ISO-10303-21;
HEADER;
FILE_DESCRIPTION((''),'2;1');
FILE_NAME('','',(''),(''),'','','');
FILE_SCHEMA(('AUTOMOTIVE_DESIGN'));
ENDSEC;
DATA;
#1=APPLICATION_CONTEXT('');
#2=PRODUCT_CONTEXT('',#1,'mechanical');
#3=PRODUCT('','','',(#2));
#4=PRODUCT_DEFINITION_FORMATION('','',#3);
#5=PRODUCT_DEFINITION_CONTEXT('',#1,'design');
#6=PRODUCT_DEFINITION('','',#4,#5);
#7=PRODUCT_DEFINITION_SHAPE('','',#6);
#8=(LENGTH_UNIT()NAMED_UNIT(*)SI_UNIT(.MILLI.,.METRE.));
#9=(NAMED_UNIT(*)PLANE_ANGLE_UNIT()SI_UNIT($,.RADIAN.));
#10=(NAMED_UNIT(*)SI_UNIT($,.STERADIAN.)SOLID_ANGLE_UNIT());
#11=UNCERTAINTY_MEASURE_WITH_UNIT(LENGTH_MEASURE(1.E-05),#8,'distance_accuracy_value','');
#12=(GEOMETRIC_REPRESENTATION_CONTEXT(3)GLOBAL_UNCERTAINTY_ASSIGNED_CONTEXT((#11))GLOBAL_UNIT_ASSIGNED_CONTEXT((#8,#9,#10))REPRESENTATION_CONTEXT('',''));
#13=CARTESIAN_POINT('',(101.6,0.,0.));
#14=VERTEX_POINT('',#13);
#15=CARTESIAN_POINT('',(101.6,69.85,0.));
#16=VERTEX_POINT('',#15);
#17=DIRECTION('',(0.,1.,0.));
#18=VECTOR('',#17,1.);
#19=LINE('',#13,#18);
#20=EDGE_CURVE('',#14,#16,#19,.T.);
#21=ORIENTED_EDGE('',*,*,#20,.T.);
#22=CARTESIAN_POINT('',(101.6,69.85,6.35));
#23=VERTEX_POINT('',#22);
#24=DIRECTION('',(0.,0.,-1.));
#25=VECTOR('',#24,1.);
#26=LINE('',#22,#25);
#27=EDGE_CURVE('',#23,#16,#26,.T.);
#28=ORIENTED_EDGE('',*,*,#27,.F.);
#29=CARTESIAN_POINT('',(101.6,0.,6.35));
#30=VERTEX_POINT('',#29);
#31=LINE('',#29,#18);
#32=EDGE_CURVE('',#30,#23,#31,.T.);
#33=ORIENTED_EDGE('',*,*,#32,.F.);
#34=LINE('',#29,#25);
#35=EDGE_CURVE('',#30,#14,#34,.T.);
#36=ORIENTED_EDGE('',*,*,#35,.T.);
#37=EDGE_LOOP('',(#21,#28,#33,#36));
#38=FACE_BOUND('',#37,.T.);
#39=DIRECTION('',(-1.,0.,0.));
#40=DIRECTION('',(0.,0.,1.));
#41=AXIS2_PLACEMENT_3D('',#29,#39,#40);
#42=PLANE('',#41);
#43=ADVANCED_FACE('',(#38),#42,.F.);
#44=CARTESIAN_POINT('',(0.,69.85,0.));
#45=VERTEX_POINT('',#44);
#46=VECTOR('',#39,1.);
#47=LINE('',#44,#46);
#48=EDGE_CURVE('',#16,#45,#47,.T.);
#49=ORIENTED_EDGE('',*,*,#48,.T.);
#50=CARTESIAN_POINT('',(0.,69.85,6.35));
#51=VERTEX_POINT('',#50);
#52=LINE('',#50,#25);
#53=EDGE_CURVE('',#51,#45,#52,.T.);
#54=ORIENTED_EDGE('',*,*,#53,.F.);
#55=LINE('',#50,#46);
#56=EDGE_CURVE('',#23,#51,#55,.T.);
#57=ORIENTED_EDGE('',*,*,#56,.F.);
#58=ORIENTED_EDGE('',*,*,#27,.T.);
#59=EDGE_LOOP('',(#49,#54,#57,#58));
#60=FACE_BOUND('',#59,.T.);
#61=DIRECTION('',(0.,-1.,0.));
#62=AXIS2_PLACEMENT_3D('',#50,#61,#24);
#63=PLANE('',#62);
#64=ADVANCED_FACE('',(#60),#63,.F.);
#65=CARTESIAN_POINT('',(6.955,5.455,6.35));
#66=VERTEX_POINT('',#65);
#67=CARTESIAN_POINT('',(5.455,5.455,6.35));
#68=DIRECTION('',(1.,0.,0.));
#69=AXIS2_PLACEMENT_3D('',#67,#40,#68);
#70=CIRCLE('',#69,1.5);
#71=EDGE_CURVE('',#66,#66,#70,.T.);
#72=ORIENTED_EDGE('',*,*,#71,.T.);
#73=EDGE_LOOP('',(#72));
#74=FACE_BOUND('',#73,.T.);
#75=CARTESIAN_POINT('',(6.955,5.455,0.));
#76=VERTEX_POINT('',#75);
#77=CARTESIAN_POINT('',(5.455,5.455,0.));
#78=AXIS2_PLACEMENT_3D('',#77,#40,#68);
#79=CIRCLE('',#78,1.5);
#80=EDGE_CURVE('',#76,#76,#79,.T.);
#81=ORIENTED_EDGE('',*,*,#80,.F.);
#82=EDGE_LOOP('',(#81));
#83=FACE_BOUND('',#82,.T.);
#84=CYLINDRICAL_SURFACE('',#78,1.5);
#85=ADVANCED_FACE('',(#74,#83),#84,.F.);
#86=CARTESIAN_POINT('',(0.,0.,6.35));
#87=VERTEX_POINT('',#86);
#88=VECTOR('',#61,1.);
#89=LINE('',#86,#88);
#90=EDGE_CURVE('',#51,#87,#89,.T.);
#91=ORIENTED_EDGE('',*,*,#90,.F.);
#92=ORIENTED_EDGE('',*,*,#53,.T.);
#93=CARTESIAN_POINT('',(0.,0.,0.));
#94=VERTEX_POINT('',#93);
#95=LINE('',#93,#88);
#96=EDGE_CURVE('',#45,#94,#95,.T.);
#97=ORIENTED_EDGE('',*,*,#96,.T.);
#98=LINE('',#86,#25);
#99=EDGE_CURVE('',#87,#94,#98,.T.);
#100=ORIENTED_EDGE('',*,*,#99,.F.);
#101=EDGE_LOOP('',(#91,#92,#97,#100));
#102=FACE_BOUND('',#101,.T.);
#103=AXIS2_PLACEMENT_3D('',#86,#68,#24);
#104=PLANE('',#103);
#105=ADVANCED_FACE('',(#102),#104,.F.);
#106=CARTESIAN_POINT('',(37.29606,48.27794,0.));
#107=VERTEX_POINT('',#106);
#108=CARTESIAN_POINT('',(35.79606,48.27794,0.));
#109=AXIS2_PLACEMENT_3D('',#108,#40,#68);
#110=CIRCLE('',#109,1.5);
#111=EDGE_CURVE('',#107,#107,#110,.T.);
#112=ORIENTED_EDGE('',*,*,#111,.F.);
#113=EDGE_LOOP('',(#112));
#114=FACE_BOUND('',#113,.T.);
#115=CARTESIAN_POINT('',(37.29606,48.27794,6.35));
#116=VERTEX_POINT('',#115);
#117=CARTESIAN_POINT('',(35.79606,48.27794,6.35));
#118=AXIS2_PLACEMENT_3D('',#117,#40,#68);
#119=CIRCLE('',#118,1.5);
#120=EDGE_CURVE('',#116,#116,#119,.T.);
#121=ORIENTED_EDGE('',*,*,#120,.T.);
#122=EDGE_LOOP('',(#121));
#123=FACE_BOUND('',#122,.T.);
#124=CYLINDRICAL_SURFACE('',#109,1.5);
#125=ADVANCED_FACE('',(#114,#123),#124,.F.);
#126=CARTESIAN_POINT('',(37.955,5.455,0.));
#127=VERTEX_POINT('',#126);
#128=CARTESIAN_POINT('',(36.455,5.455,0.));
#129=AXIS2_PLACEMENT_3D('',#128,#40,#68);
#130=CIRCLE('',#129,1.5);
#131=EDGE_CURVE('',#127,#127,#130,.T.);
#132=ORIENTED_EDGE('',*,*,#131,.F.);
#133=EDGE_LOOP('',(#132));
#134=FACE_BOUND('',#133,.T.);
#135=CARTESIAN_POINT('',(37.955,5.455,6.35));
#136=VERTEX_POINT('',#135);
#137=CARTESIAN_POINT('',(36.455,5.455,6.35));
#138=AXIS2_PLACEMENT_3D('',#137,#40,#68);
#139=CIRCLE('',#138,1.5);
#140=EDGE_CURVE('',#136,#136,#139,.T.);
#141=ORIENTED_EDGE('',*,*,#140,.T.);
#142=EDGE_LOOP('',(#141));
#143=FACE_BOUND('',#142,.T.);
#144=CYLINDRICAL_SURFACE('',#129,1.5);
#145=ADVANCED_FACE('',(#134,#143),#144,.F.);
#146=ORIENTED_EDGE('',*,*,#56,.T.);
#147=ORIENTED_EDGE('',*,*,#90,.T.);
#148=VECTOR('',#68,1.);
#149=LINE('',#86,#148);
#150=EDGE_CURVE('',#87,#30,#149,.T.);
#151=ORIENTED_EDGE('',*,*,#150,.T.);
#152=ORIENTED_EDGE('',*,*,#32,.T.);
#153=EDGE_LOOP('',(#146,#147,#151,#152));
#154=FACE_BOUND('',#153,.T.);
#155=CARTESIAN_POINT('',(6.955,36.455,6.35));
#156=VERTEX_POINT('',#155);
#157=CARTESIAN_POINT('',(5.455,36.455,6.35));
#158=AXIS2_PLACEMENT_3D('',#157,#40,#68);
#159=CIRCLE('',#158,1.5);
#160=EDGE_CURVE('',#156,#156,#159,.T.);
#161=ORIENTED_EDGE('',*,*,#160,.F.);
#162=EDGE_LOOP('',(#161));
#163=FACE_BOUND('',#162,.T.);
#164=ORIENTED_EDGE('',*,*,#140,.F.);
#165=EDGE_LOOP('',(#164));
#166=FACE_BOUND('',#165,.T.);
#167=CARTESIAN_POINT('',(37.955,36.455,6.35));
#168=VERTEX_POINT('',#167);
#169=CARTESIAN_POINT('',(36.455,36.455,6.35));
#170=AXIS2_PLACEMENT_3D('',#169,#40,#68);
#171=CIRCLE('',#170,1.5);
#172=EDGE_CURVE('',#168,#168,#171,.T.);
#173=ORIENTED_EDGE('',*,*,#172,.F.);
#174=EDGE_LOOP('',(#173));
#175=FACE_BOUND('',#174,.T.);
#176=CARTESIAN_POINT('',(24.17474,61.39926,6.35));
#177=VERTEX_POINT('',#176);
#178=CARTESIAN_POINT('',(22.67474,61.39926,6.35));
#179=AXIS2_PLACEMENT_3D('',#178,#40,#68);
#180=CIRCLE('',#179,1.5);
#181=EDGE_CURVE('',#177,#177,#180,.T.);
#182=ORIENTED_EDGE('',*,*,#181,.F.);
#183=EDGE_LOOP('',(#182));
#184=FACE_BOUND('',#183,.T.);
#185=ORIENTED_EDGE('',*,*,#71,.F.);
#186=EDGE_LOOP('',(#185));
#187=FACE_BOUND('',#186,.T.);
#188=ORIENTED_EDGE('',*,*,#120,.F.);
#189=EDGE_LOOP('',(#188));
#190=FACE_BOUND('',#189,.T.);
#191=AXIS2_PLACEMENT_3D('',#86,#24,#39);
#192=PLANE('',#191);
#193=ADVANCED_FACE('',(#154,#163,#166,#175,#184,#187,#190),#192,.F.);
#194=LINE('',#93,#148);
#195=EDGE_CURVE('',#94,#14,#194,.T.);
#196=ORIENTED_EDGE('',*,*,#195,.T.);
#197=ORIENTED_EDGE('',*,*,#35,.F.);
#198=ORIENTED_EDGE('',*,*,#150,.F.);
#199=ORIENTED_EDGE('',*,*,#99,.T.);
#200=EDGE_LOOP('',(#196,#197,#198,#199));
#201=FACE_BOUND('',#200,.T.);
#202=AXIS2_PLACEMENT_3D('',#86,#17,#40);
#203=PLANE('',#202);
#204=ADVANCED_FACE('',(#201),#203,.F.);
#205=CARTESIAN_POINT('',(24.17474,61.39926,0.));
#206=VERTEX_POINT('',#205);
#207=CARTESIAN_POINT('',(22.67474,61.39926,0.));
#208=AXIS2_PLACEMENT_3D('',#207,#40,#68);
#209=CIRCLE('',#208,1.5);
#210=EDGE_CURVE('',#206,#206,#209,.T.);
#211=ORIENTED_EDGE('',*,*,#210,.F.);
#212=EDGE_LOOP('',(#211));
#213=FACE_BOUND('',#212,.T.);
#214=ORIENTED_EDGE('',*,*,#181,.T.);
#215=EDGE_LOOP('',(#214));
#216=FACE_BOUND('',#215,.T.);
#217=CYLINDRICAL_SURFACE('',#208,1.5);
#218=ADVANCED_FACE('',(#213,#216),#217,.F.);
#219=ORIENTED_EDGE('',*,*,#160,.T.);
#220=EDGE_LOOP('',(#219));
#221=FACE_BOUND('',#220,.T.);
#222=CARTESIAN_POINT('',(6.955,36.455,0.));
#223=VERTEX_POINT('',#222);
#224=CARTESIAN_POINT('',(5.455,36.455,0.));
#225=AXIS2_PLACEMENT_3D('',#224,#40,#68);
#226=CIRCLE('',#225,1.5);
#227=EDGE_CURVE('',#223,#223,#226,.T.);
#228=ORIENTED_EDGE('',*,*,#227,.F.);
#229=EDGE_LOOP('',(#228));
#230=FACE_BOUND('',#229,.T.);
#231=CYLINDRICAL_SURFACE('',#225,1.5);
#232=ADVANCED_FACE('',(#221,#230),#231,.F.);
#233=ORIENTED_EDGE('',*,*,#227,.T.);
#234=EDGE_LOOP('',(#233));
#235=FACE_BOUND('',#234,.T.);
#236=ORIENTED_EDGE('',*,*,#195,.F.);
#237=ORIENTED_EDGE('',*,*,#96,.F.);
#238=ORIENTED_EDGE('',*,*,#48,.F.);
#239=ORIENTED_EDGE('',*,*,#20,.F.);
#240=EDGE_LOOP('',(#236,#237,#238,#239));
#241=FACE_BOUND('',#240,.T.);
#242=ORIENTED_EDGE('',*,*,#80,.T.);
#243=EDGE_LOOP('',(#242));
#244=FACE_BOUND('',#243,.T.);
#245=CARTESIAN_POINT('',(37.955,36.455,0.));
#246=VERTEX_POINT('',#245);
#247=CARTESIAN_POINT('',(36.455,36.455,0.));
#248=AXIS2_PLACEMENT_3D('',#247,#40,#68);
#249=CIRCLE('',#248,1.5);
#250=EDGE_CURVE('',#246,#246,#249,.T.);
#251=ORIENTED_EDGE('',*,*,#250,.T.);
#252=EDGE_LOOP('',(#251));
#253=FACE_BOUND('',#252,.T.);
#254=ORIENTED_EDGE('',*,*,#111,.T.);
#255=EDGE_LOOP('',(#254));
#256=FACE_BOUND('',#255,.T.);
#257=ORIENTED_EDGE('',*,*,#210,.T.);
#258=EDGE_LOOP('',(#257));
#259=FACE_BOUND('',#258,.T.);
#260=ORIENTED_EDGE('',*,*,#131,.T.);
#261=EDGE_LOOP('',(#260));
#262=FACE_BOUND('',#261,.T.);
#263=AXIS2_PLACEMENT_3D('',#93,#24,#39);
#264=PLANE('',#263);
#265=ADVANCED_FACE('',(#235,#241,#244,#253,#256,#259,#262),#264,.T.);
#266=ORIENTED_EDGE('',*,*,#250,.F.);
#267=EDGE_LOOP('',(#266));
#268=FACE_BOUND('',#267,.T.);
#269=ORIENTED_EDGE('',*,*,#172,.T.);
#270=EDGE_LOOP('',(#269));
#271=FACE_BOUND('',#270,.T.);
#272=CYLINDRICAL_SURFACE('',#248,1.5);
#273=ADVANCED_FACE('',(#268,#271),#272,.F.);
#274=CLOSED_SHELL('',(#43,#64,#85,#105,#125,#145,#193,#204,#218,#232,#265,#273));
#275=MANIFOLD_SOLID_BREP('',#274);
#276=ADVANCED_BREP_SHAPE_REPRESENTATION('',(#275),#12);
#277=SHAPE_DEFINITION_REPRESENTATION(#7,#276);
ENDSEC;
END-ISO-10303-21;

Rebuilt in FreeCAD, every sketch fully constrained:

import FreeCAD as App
import Part
import Sketcher
from FreeCAD import Vector
Q = App.Units.Quantity


def add_polygon(sketch, points):
    """Adds a closed chain of lines whose ends are joined by coincident constraints."""
    first, n = sketch.GeometryCount, len(points)
    for a, b in zip(points, points[1:] + points[:1]):
        sketch.addGeometry(Part.LineSegment(App.Vector(*a, 0), App.Vector(*b, 0)), False)
    for i in range(n):
        sketch.addConstraint(Sketcher.Constraint("Coincident", first + i, 2, first + (i + 1) % n, 1))

doc = App.newDocument("Part")
body = doc.addObject("PartDesign::Body", "Body")

# Sketch on XY plane
sketch1 = body.newObject("Sketcher::SketchObject", "Sketch")
sketch1.AttachmentSupport = (doc.getObject("XY_Plane"), [""])
sketch1.MapMode = "FlatFace"
add_polygon(sketch1, [(0, 70), (0, 0), (102, 0), (102, 70)])  # lines 0-3
sketch1.addConstraint([
    Sketcher.Constraint("Vertical", 0),
    Sketcher.Constraint("Horizontal", 1),
    Sketcher.Constraint("Vertical", 2),
    Sketcher.Constraint("Horizontal", 3),
    Sketcher.Constraint("Coincident", 0, 2, -1, 1),
    Sketcher.Constraint("DistanceX", 1, 1, 1, 2, Q("4 in")),
    Sketcher.Constraint("DistanceY", 0, 2, 0, 1, Q("2.75 in")),
])
pad1 = body.newObject("PartDesign::Pad", "Pad")
pad1.Profile = sketch1
pad1.Length = Q("0.25 in")

# Sketch on XY plane
sketch2 = body.newObject("Sketcher::SketchObject", "Sketch001")
sketch2.AttachmentSupport = (doc.getObject("XY_Plane"), [""])
sketch2.MapMode = "FlatFace"
sketch2.AttachmentOffset = App.Placement(Vector(0, 0, 0.25 * 25.4), App.Rotation())
sketch2.addGeometry([
    Part.Circle(Vector(5.5, 5.5, 0), Vector(0, 0, 1), 1.5),  # 0
    Part.Circle(Vector(5.5, 36.5, 0), Vector(0, 0, 1), 1.5),  # 1
    Part.Circle(Vector(36.5, 5.5, 0), Vector(0, 0, 1), 1.5),  # 2
    Part.Circle(Vector(36.5, 36.5, 0), Vector(0, 0, 1), 1.5),  # 3
    Part.Circle(Vector(22.7, 61.4, 0), Vector(0, 0, 1), 1.5),  # 4
    Part.Circle(Vector(35.8, 48.3, 0), Vector(0, 0, 1), 1.5),  # 5
], False)
sketch2.addConstraint([
    Sketcher.Constraint("Equal", 0, 1),
    Sketcher.Constraint("Equal", 1, 2),
    Sketcher.Constraint("Equal", 2, 3),
    Sketcher.Constraint("Equal", 3, 4),
    Sketcher.Constraint("Equal", 4, 5),
    Sketcher.Constraint("Horizontal", 0, 3, 2, 3),
    Sketcher.Constraint("Horizontal", 1, 3, 3, 3),
    Sketcher.Constraint("Vertical", 0, 3, 1, 3),
    Sketcher.Constraint("Vertical", 2, 3, 3, 3),
    Sketcher.Constraint("Diameter", 0, Q("3 mm")),
    Sketcher.Constraint("DistanceX", -1, 1, 0, 3, Q("5.455 mm")),
    Sketcher.Constraint("DistanceY", -1, 1, 0, 3, Q("5.455 mm")),
    Sketcher.Constraint("DistanceY", -1, 1, 1, 3, Q("36.455 mm")),
    Sketcher.Constraint("DistanceX", -1, 1, 2, 3, Q("36.455 mm")),
    Sketcher.Constraint("DistanceX", -1, 1, 4, 3, Q("22.67474 mm")),
    Sketcher.Constraint("DistanceY", -1, 1, 4, 3, Q("61.39926 mm")),
    Sketcher.Constraint("DistanceX", -1, 1, 5, 3, Q("35.79606 mm")),
    Sketcher.Constraint("DistanceY", -1, 1, 5, 3, Q("48.27794 mm")),
])
pocket1 = body.newObject("PartDesign::Pocket", "Pocket")
pocket1.Profile = sketch2
pocket1.Type = "ThroughAll"

doc.recompute()
